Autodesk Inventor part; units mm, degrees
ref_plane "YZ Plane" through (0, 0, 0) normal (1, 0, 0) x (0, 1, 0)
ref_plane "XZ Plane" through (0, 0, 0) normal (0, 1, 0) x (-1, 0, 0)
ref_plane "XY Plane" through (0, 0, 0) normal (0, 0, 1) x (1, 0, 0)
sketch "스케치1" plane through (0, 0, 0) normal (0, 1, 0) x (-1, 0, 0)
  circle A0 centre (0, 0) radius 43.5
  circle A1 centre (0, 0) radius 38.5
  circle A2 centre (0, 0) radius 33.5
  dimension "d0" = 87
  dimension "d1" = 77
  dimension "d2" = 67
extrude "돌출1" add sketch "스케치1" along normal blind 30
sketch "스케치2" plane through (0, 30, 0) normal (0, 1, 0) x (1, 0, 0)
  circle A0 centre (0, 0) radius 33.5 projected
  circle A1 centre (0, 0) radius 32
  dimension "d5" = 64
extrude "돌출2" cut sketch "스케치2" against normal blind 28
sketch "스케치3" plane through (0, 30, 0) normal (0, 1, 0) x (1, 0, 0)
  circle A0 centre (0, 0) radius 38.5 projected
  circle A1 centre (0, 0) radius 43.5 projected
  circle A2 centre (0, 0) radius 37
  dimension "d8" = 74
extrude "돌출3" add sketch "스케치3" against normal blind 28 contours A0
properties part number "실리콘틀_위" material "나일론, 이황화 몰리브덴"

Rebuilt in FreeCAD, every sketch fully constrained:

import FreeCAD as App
import Part
import Sketcher

V = App.Vector

doc = App.newDocument("Part")
params = doc.addObject("Spreadsheet::Sheet", "Params")
for row, (alias, value) in enumerate([
    ("sketch1_diameter", "87 mm"),
    ("sketch1_diameter2", "77 mm"),
    ("sketch1_diameter3", "67 mm"),
    ("pad1_length", "30 mm"),
    ("sketch2_diameter", "64 mm"),
    ("sketch2_diameter2", "67 mm"),
    ("pocket1_length", "28 mm"),
    ("sketch3_diameter", "74 mm"),
    ("sketch3_diameter2", "77 mm"),
    ("pad2_length", "28 mm"),
], start=1):
    params.set(f"A{row}", alias)
    params.set(f"B{row}", "=" + value)
    params.setAlias(f"B{row}", alias)

body = doc.addObject("PartDesign::Body", "Body")
body.AllowCompound = True

# Sketch on XZ plane
sketch1 = body.newObject("Sketcher::SketchObject", "Sketch")
sketch1.AttachmentSupport = (doc.getObject("XZ_Plane"), [""])
sketch1.MapMode = "FlatFace"
sketch1.addGeometry(Part.Circle(V(0, 0, 0), V(0, 0, 1), 43.5), False)
sketch1.addGeometry(Part.Circle(V(0, 0, 0), V(0, 0, 1), 38.5), False)
sketch1.addGeometry(Part.Circle(V(0, 0, 0), V(0, 0, 1), 33.5), False)
sketch1.addConstraint(Sketcher.Constraint("Coincident", 0, 3, -1, 1))
sketch1.addConstraint(Sketcher.Constraint("Coincident", 1, 3, -1, 1))
sketch1.addConstraint(Sketcher.Constraint("Coincident", 2, 3, -1, 1))
sketch1.addConstraint(Sketcher.Constraint("Diameter", 0, 87.0))
sketch1.addConstraint(Sketcher.Constraint("Diameter", 1, 77.0))
sketch1.addConstraint(Sketcher.Constraint("Diameter", 2, 67.0))
sketch1.setExpression("Constraints[3]", "Params.sketch1_diameter")
sketch1.setExpression("Constraints[4]", "Params.sketch1_diameter2")
sketch1.setExpression("Constraints[5]", "Params.sketch1_diameter3")
pad1 = body.newObject("PartDesign::Pad", "Pad")
pad1.Profile = sketch1
pad1.setExpression("Length", "Params.pad1_length")
pad1.Reversed = True

# Sketch on XZ plane
sketch2 = body.newObject("Sketcher::SketchObject", "Sketch001")
sketch2.AttachmentSupport = (doc.getObject("XZ_Plane"), [""])
sketch2.MapMode = "FlatFace"
sketch2.AttachmentOffset = App.Placement(V(0, 0, -30), App.Rotation())
sketch2.addGeometry(Part.Circle(V(0, 0, 0), V(0, 0, 1), 33.5), False)
sketch2.addGeometry(Part.Circle(V(0, 0, 0), V(0, 0, 1), 32), False)
sketch2.addConstraint(Sketcher.Constraint("Coincident", 0, 3, -1, 1))
sketch2.addConstraint(Sketcher.Constraint("Coincident", 1, 3, -1, 1))
sketch2.addConstraint(Sketcher.Constraint("Diameter", 1, 64.0))
sketch2.addConstraint(Sketcher.Constraint("Diameter", 0, 67.0))
sketch2.setExpression("Constraints[2]", "Params.sketch2_diameter")
sketch2.setExpression("Constraints[3]", "Params.sketch2_diameter2")
pocket1 = body.newObject("PartDesign::Pocket", "Pocket")
pocket1.Profile = sketch2
pocket1.setExpression("Length", "Params.pocket1_length")
pocket1.Reversed = True

# Sketch on XZ plane
sketch3 = body.newObject("Sketcher::SketchObject", "Sketch002")
sketch3.AttachmentSupport = (doc.getObject("XZ_Plane"), [""])
sketch3.MapMode = "FlatFace"
sketch3.AttachmentOffset = App.Placement(V(0, 0, -30), App.Rotation())
sketch3.addGeometry(Part.Circle(V(0, 0, 0), V(0, 0, 1), 38.5), False)
sketch3.addGeometry(Part.Circle(V(0, 0, 0), V(0, 0, 1), 37), False)
sketch3.addConstraint(Sketcher.Constraint("Coincident", 0, 3, -1, 1))
sketch3.addConstraint(Sketcher.Constraint("Coincident", 1, 3, -1, 1))
sketch3.addConstraint(Sketcher.Constraint("Diameter", 1, 74.0))
sketch3.addConstraint(Sketcher.Constraint("Diameter", 0, 77.0))
sketch3.setExpression("Constraints[2]", "Params.sketch3_diameter")
sketch3.setExpression("Constraints[3]", "Params.sketch3_diameter2")
pad2 = body.newObject("PartDesign::Pad", "Pad001")
pad2.Profile = sketch3
pad2.setExpression("Length", "Params.pad2_length")

doc.recompute()
